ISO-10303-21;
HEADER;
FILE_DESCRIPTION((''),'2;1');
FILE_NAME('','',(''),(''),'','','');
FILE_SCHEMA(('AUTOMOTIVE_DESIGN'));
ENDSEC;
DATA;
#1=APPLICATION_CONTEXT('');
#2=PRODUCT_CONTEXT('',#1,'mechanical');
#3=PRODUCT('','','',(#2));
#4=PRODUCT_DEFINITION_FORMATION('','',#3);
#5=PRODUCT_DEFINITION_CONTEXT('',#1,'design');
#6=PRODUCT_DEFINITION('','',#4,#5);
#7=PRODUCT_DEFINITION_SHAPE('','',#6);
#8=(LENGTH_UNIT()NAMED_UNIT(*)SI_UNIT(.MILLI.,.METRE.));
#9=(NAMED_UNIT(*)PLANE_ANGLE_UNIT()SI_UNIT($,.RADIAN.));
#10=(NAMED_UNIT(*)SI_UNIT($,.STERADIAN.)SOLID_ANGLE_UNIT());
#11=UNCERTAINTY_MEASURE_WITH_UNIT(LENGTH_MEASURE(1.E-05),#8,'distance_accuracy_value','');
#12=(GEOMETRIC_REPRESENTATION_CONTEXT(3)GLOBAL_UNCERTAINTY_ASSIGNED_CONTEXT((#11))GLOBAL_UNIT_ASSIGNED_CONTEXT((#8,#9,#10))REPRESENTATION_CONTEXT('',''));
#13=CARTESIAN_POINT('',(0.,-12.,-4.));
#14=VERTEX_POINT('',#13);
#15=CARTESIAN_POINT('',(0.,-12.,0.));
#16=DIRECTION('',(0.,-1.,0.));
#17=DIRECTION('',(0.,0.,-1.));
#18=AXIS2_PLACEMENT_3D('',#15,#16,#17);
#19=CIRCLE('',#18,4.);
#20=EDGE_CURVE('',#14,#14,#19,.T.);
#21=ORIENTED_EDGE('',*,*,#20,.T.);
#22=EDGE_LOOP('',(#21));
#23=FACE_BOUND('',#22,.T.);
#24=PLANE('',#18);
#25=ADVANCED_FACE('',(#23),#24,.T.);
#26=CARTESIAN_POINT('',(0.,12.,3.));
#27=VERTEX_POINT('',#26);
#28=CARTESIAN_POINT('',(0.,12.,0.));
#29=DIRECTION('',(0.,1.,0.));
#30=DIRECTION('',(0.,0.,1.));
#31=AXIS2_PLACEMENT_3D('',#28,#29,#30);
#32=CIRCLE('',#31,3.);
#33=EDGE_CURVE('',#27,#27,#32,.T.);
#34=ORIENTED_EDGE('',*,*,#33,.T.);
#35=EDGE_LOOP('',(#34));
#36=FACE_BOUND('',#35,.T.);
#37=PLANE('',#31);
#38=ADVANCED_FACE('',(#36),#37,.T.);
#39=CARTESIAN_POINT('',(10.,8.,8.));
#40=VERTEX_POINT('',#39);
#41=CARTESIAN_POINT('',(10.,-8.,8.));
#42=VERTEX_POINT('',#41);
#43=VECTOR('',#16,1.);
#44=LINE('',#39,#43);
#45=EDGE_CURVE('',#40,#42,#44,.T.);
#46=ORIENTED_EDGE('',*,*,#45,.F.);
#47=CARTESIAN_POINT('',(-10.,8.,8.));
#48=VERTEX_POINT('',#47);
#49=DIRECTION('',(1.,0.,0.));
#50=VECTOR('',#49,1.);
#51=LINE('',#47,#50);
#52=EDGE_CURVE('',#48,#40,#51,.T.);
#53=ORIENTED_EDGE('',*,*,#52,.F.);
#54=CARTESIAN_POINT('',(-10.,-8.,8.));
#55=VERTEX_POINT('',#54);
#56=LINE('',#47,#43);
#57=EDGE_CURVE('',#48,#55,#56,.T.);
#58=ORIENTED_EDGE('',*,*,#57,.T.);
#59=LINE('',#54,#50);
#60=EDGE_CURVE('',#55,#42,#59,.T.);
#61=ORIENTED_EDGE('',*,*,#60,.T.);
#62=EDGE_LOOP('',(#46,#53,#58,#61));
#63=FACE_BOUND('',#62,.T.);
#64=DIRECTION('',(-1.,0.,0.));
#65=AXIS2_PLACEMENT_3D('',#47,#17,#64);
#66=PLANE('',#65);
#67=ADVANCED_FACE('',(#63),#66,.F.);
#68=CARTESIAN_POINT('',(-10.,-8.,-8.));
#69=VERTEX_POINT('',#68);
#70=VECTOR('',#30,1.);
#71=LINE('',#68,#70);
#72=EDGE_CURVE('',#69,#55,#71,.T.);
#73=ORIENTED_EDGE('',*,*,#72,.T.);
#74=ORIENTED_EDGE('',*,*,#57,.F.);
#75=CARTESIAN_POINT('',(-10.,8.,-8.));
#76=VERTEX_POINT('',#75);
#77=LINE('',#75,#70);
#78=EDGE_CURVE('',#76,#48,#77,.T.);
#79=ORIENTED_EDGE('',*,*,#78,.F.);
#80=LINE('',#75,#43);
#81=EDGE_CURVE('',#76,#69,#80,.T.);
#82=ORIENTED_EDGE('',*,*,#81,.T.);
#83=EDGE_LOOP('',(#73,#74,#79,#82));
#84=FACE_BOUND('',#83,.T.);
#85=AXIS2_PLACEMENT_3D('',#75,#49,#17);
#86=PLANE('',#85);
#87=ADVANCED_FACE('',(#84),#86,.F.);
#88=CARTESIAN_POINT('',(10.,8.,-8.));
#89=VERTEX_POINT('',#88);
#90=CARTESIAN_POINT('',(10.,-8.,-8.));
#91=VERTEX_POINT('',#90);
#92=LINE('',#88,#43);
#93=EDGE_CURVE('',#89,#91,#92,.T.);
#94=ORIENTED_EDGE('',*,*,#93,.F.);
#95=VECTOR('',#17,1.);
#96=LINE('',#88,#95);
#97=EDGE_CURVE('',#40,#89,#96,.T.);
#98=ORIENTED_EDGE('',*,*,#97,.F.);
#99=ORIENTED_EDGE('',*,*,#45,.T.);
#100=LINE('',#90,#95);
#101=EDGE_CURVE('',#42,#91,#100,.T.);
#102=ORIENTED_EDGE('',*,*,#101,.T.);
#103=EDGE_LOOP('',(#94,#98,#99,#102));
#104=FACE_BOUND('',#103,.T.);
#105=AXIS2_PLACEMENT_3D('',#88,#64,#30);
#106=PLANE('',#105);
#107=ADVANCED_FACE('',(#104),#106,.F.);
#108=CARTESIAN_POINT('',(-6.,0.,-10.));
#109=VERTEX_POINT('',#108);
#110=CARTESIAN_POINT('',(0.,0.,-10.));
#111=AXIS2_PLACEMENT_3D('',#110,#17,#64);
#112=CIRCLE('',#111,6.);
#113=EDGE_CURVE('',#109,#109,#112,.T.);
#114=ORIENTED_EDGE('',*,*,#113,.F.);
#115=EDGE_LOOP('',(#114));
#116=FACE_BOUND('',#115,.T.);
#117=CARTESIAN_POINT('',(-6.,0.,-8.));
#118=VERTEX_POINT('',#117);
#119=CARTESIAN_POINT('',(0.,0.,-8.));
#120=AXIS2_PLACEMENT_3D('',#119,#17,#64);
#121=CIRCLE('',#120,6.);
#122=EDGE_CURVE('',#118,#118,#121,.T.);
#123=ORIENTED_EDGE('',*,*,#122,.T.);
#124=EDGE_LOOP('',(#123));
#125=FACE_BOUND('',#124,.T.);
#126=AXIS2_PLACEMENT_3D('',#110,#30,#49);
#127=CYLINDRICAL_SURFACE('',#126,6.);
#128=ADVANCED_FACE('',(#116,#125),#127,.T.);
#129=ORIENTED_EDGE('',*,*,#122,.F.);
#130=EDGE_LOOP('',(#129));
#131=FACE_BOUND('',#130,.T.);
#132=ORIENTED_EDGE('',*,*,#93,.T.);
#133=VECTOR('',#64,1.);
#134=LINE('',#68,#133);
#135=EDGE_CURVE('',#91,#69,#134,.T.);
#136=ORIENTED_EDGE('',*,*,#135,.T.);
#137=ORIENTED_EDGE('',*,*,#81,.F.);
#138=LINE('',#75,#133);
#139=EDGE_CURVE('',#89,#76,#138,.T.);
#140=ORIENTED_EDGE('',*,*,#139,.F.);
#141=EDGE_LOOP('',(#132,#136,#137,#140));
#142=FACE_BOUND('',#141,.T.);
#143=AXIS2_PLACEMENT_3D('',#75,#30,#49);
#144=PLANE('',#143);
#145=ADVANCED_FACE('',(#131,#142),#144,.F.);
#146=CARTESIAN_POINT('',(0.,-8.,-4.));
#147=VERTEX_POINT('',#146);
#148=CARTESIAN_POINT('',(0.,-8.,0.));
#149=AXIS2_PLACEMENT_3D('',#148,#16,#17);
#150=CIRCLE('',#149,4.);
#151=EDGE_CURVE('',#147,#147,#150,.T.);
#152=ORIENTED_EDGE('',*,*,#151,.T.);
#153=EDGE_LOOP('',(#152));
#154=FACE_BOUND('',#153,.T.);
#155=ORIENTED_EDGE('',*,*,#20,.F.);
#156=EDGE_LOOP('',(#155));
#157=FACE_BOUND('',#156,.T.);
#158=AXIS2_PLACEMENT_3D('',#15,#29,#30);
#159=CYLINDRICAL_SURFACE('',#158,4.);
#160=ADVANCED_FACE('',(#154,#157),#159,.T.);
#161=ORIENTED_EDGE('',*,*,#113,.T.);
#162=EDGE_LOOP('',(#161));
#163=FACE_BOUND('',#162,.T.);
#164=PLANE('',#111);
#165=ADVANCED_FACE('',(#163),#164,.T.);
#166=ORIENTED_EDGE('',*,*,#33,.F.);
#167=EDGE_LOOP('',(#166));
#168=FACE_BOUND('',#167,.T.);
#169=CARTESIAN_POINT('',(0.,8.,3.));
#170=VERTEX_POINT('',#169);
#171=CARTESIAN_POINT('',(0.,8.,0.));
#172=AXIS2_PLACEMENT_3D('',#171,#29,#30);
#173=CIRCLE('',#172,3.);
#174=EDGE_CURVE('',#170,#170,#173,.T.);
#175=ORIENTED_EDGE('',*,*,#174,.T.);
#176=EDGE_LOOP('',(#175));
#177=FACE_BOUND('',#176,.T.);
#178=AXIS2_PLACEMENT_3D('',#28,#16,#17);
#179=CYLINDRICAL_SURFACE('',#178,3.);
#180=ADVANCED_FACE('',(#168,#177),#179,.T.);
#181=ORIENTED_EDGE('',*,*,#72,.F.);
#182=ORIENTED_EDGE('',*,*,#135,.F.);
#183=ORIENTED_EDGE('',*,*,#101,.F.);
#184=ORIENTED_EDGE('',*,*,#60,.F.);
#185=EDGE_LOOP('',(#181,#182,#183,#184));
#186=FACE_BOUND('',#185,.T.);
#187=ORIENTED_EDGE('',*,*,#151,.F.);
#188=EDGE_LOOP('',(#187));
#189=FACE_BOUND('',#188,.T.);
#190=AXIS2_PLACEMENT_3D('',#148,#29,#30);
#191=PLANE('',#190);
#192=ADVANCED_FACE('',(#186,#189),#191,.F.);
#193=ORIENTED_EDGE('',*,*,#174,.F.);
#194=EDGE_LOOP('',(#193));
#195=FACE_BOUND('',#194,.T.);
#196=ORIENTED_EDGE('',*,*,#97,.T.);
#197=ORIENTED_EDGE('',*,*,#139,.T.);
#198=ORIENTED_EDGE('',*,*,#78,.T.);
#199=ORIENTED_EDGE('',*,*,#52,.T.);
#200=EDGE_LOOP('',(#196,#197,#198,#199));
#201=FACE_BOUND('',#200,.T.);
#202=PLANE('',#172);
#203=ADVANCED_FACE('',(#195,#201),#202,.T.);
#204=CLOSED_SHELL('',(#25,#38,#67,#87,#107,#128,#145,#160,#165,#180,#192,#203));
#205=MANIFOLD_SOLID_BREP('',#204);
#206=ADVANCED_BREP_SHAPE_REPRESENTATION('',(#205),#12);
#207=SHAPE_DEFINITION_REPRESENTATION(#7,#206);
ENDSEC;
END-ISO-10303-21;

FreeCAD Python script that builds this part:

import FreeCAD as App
import Part
import Sketcher
from FreeCAD import Vector

doc = App.newDocument("Part")
body = doc.addObject("PartDesign::Body", "Body")

# Sketch on XZ plane
sketch1 = body.newObject("Sketcher::SketchObject", "Sketch")
sketch1.AttachmentSupport = (doc.getObject("XZ_Plane"), [""])
sketch1.MapMode = "FlatFace"
sketch1.addGeometry([
    Part.LineSegment(Vector(-10, -8, 0), Vector(-10, 8, 0)),
    Part.LineSegment(Vector(-10, 8, 0), Vector(10, 8, 0)),
    Part.LineSegment(Vector(10, 8, 0), Vector(10, -8, 0)),
    Part.LineSegment(Vector(10, -8, 0), Vector(-10, -8, 0)),
], False)
sketch1.addConstraint([
    Sketcher.Constraint("Coincident", 0, 2, 1, 1),
    Sketcher.Constraint("Coincident", 1, 2, 2, 1),
    Sketcher.Constraint("Coincident", 2, 2, 3, 1),
    Sketcher.Constraint("Coincident", 3, 2, 0, 1),
    Sketcher.Constraint("Vertical", 0),
    Sketcher.Constraint("Horizontal", 1),
    Sketcher.Constraint("Vertical", 2),
    Sketcher.Constraint("Horizontal", 3),
    Sketcher.Constraint("Symmetric", 0, 2, 2, 2, -1, 1),
    Sketcher.Constraint("DistanceX", 1, 1, 1, 2, 20.0),
    Sketcher.Constraint("DistanceY", 0, 1, 0, 2, 16.0),
])
pad1 = body.newObject("PartDesign::Pad", "Pad")
pad1.Profile = sketch1
pad1.Length = 16
pad1.Midplane = True

# Sketch on XY plane
sketch2 = body.newObject("Sketcher::SketchObject", "Sketch001")
sketch2.AttachmentSupport = (doc.getObject("XY_Plane"), [""])
sketch2.MapMode = "FlatFace"
sketch2.AttachmentOffset = App.Placement(Vector(0, 0, -8), App.Rotation())
sketch2.addGeometry(Part.Circle(Vector(0, 0, 0), Vector(0, 0, 1), 6), False)
sketch2.addConstraint([
    Sketcher.Constraint("Coincident", 0, 3, -1, 1),
    Sketcher.Constraint("Diameter", 0, 12.0),
])
pad2 = body.newObject("PartDesign::Pad", "Pad001")
pad2.Profile = sketch2
pad2.Length = 2
pad2.Reversed = True

# Sketch on XZ plane
sketch3 = body.newObject("Sketcher::SketchObject", "Sketch002")
sketch3.AttachmentSupport = (doc.getObject("XZ_Plane"), [""])
sketch3.MapMode = "FlatFace"
sketch3.AttachmentOffset = App.Placement(Vector(0, 0, 8), App.Rotation())
sketch3.addGeometry(Part.Circle(Vector(0, 0, 0), Vector(0, 0, 1), 4), False)
sketch3.addConstraint([
    Sketcher.Constraint("Coincident", 0, 3, -1, 1),
    Sketcher.Constraint("Diameter", 0, 8.0),
])
pad3 = body.newObject("PartDesign::Pad", "Pad002")
pad3.Profile = sketch3
pad3.Length = 4

# Sketch on XZ plane
sketch4 = body.newObject("Sketcher::SketchObject", "Sketch003")
sketch4.AttachmentSupport = (doc.getObject("XZ_Plane"), [""])
sketch4.MapMode = "FlatFace"
sketch4.AttachmentOffset = App.Placement(Vector(0, 0, -8), App.Rotation())
sketch4.addGeometry(Part.Circle(Vector(0, 0, 0), Vector(0, 0, 1), 3), False)
sketch4.addConstraint([
    Sketcher.Constraint("Coincident", 0, 3, -1, 1),
    Sketcher.Constraint("Diameter", 0, 6.0),
])
pad4 = body.newObject("PartDesign::Pad", "Pad003")
pad4.Profile = sketch4
pad4.Length = 4
pad4.Reversed = True

doc.recompute()
